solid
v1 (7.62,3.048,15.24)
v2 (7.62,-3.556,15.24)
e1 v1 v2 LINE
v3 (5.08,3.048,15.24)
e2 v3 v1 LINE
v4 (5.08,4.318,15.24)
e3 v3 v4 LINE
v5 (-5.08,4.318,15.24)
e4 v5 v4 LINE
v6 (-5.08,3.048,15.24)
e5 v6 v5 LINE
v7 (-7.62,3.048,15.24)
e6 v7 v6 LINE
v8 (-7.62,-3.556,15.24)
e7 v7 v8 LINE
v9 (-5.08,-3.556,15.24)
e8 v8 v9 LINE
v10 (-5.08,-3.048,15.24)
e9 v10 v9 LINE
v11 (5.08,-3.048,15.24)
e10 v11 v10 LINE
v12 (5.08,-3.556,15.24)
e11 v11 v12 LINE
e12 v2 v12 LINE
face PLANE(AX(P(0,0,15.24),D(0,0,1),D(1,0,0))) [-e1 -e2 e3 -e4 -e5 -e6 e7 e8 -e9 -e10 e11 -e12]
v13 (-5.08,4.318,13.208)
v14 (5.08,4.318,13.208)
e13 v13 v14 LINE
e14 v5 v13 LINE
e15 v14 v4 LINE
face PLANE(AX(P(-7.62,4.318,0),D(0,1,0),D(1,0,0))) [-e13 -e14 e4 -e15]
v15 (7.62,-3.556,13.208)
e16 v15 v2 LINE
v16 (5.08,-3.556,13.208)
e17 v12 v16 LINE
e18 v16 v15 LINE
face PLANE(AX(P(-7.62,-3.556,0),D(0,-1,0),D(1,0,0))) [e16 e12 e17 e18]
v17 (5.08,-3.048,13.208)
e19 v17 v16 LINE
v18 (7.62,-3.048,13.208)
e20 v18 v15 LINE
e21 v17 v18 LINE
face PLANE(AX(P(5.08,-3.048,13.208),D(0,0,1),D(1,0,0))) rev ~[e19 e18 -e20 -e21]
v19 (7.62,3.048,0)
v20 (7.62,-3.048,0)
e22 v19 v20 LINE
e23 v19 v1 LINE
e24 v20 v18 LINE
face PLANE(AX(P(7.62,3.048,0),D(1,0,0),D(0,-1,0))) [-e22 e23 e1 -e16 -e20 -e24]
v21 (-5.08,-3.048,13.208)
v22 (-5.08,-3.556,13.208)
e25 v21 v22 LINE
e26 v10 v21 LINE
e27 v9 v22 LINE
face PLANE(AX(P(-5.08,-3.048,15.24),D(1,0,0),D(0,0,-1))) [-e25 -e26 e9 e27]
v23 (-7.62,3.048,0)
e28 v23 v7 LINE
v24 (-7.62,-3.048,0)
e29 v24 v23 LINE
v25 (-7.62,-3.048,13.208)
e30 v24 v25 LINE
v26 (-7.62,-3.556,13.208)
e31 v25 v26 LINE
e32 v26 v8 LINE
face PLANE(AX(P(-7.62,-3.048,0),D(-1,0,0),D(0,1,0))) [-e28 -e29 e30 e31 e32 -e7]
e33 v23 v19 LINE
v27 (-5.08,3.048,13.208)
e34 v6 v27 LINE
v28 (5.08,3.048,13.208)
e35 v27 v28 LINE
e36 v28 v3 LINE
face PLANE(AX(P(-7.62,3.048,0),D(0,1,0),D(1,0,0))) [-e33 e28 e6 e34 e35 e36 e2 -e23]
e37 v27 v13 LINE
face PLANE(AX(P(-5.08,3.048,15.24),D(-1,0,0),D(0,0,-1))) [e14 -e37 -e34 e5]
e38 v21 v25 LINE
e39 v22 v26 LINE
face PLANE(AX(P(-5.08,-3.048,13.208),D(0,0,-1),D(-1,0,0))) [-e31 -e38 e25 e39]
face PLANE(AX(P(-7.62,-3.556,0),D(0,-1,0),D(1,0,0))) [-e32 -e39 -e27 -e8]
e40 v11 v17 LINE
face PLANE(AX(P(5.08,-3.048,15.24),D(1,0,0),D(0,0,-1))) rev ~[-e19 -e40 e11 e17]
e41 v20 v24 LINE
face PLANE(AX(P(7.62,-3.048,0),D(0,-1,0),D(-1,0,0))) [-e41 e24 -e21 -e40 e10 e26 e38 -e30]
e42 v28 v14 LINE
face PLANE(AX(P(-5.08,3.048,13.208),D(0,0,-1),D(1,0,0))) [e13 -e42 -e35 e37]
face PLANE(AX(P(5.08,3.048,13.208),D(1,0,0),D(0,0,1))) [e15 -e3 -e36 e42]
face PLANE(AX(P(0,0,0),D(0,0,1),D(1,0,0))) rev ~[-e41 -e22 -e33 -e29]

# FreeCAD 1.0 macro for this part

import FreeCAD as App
import Part
import Sketcher
Q = App.Units.Quantity


def add_polygon(sketch, points):
    """Adds a closed chain of lines whose ends are joined by coincident constraints."""
    first, n = sketch.GeometryCount, len(points)
    for a, b in zip(points, points[1:] + points[:1]):
        sketch.addGeometry(Part.LineSegment(App.Vector(*a, 0), App.Vector(*b, 0)), False)
    for i in range(n):
        sketch.addConstraint(Sketcher.Constraint("Coincident", first + i, 2, first + (i + 1) % n, 1))

doc = App.newDocument("Part")
body = doc.addObject("PartDesign::Body", "Body")

sketch1 = doc.addObject("Sketcher::SketchObject", "Sketch")
body.addObject(sketch1)
sketch1.AttachmentSupport = (doc.XY_Plane, [""])
sketch1.MapMode = "FlatFace"
add_polygon(sketch1, [(8, 3), (-8, 3), (-8, -3), (8, -3)])
sketch1.addConstraint(Sketcher.Constraint("Horizontal", 0))
sketch1.addConstraint(Sketcher.Constraint("Vertical", 1))
sketch1.addConstraint(Sketcher.Constraint("Horizontal", 2))
sketch1.addConstraint(Sketcher.Constraint("Vertical", 3))
sketch1.addConstraint(Sketcher.Constraint("Symmetric", 0, 2, 2, 2, -1, 1))
sketch1.addConstraint(Sketcher.Constraint("DistanceX", 0, 2, 0, 1, Q("0.6 in")))
sketch1.addConstraint(Sketcher.Constraint("DistanceY", 1, 2, 1, 1, Q("0.24 in")))
pad1 = doc.addObject("PartDesign::Pad", "Pad")
body.addObject(pad1)
pad1.Profile = sketch1
pad1.Length = Q("0.6 in")

sketch2 = doc.addObject("Sketcher::SketchObject", "Sketch001")
body.addObject(sketch2)
sketch2.AttachmentSupport = (doc.XZ_Plane, [""])
sketch2.MapMode = "FlatFace"
sketch2.AttachmentOffset = App.Placement(App.Vector(0, 0, -0.12 * 25.4), App.Rotation())
add_polygon(sketch2, [(-5.1, 13.2), (-5.1, 15.2), (5.1, 15.2), (5.1, 13.2)])
sketch2.addConstraint(Sketcher.Constraint("Vertical", 0))
sketch2.addConstraint(Sketcher.Constraint("Horizontal", 1))
sketch2.addConstraint(Sketcher.Constraint("Vertical", 2))
sketch2.addConstraint(Sketcher.Constraint("Horizontal", 3))
sketch2.addConstraint(Sketcher.Constraint("DistanceX", 1, 1, 1, 2, Q("0.4 in")))
sketch2.addConstraint(Sketcher.Constraint("DistanceY", 0, 1, 0, 2, Q("0.08 in")))
sketch2.addConstraint(Sketcher.Constraint("DistanceX", 0, 2, -1, 1, Q("0.2 in")))
sketch2.addConstraint(Sketcher.Constraint("DistanceY", -1, 1, 0, 2, Q("0.6 in")))
pad2 = doc.addObject("PartDesign::Pad", "Pad001")
body.addObject(pad2)
pad2.Profile = sketch2
pad2.Length = Q("0.05 in")
pad2.Reversed = True

sketch3 = doc.addObject("Sketcher::SketchObject", "Sketch002")
body.addObject(sketch3)
sketch3.AttachmentSupport = (doc.XZ_Plane, [""])
sketch3.MapMode = "FlatFace"
sketch3.AttachmentOffset = App.Placement(App.Vector(0, 0, 0.12 * 25.4), App.Rotation())
add_polygon(sketch3, [(-5.1, 15.2), (-7.6, 15.2), (-7.6, 13.2), (-5.1, 13.2)])
add_polygon(sketch3, [(7.6, 13.2), (7.6, 15.2), (5.1, 15.2), (5.1, 13.2)])
sketch3.addConstraint(Sketcher.Constraint("Horizontal", 0))
sketch3.addConstraint(Sketcher.Constraint("Vertical", 1))
sketch3.addConstraint(Sketcher.Constraint("Horizontal", 2))
sketch3.addConstraint(Sketcher.Constraint("Vertical", 3))
sketch3.addConstraint(Sketcher.Constraint("Vertical", 4))
sketch3.addConstraint(Sketcher.Constraint("Horizontal", 5))
sketch3.addConstraint(Sketcher.Constraint("Vertical", 6))
sketch3.addConstraint(Sketcher.Constraint("Horizontal", 7))
sketch3.addConstraint(Sketcher.Constraint("Symmetric", 0, 2, 4, 2, -2))
sketch3.addConstraint(Sketcher.Constraint("Symmetric", 2, 2, 6, 2, -2))
sketch3.addConstraint(Sketcher.Constraint("DistanceX", 0, 2, 0, 1, Q("0.1 in")))
sketch3.addConstraint(Sketcher.Constraint("DistanceY", 1, 2, 1, 1, Q("0.08 in")))
sketch3.addConstraint(Sketcher.Constraint("DistanceX", 0, 2, -1, 1, Q("0.3 in")))
sketch3.addConstraint(Sketcher.Constraint("DistanceY", -1, 1, 0, 2, Q("0.6 in")))
pad3 = doc.addObject("PartDesign::Pad", "Pad002")
body.addObject(pad3)
pad3.Profile = sketch3
pad3.Length = Q("0.02 in")

doc.recompute()
